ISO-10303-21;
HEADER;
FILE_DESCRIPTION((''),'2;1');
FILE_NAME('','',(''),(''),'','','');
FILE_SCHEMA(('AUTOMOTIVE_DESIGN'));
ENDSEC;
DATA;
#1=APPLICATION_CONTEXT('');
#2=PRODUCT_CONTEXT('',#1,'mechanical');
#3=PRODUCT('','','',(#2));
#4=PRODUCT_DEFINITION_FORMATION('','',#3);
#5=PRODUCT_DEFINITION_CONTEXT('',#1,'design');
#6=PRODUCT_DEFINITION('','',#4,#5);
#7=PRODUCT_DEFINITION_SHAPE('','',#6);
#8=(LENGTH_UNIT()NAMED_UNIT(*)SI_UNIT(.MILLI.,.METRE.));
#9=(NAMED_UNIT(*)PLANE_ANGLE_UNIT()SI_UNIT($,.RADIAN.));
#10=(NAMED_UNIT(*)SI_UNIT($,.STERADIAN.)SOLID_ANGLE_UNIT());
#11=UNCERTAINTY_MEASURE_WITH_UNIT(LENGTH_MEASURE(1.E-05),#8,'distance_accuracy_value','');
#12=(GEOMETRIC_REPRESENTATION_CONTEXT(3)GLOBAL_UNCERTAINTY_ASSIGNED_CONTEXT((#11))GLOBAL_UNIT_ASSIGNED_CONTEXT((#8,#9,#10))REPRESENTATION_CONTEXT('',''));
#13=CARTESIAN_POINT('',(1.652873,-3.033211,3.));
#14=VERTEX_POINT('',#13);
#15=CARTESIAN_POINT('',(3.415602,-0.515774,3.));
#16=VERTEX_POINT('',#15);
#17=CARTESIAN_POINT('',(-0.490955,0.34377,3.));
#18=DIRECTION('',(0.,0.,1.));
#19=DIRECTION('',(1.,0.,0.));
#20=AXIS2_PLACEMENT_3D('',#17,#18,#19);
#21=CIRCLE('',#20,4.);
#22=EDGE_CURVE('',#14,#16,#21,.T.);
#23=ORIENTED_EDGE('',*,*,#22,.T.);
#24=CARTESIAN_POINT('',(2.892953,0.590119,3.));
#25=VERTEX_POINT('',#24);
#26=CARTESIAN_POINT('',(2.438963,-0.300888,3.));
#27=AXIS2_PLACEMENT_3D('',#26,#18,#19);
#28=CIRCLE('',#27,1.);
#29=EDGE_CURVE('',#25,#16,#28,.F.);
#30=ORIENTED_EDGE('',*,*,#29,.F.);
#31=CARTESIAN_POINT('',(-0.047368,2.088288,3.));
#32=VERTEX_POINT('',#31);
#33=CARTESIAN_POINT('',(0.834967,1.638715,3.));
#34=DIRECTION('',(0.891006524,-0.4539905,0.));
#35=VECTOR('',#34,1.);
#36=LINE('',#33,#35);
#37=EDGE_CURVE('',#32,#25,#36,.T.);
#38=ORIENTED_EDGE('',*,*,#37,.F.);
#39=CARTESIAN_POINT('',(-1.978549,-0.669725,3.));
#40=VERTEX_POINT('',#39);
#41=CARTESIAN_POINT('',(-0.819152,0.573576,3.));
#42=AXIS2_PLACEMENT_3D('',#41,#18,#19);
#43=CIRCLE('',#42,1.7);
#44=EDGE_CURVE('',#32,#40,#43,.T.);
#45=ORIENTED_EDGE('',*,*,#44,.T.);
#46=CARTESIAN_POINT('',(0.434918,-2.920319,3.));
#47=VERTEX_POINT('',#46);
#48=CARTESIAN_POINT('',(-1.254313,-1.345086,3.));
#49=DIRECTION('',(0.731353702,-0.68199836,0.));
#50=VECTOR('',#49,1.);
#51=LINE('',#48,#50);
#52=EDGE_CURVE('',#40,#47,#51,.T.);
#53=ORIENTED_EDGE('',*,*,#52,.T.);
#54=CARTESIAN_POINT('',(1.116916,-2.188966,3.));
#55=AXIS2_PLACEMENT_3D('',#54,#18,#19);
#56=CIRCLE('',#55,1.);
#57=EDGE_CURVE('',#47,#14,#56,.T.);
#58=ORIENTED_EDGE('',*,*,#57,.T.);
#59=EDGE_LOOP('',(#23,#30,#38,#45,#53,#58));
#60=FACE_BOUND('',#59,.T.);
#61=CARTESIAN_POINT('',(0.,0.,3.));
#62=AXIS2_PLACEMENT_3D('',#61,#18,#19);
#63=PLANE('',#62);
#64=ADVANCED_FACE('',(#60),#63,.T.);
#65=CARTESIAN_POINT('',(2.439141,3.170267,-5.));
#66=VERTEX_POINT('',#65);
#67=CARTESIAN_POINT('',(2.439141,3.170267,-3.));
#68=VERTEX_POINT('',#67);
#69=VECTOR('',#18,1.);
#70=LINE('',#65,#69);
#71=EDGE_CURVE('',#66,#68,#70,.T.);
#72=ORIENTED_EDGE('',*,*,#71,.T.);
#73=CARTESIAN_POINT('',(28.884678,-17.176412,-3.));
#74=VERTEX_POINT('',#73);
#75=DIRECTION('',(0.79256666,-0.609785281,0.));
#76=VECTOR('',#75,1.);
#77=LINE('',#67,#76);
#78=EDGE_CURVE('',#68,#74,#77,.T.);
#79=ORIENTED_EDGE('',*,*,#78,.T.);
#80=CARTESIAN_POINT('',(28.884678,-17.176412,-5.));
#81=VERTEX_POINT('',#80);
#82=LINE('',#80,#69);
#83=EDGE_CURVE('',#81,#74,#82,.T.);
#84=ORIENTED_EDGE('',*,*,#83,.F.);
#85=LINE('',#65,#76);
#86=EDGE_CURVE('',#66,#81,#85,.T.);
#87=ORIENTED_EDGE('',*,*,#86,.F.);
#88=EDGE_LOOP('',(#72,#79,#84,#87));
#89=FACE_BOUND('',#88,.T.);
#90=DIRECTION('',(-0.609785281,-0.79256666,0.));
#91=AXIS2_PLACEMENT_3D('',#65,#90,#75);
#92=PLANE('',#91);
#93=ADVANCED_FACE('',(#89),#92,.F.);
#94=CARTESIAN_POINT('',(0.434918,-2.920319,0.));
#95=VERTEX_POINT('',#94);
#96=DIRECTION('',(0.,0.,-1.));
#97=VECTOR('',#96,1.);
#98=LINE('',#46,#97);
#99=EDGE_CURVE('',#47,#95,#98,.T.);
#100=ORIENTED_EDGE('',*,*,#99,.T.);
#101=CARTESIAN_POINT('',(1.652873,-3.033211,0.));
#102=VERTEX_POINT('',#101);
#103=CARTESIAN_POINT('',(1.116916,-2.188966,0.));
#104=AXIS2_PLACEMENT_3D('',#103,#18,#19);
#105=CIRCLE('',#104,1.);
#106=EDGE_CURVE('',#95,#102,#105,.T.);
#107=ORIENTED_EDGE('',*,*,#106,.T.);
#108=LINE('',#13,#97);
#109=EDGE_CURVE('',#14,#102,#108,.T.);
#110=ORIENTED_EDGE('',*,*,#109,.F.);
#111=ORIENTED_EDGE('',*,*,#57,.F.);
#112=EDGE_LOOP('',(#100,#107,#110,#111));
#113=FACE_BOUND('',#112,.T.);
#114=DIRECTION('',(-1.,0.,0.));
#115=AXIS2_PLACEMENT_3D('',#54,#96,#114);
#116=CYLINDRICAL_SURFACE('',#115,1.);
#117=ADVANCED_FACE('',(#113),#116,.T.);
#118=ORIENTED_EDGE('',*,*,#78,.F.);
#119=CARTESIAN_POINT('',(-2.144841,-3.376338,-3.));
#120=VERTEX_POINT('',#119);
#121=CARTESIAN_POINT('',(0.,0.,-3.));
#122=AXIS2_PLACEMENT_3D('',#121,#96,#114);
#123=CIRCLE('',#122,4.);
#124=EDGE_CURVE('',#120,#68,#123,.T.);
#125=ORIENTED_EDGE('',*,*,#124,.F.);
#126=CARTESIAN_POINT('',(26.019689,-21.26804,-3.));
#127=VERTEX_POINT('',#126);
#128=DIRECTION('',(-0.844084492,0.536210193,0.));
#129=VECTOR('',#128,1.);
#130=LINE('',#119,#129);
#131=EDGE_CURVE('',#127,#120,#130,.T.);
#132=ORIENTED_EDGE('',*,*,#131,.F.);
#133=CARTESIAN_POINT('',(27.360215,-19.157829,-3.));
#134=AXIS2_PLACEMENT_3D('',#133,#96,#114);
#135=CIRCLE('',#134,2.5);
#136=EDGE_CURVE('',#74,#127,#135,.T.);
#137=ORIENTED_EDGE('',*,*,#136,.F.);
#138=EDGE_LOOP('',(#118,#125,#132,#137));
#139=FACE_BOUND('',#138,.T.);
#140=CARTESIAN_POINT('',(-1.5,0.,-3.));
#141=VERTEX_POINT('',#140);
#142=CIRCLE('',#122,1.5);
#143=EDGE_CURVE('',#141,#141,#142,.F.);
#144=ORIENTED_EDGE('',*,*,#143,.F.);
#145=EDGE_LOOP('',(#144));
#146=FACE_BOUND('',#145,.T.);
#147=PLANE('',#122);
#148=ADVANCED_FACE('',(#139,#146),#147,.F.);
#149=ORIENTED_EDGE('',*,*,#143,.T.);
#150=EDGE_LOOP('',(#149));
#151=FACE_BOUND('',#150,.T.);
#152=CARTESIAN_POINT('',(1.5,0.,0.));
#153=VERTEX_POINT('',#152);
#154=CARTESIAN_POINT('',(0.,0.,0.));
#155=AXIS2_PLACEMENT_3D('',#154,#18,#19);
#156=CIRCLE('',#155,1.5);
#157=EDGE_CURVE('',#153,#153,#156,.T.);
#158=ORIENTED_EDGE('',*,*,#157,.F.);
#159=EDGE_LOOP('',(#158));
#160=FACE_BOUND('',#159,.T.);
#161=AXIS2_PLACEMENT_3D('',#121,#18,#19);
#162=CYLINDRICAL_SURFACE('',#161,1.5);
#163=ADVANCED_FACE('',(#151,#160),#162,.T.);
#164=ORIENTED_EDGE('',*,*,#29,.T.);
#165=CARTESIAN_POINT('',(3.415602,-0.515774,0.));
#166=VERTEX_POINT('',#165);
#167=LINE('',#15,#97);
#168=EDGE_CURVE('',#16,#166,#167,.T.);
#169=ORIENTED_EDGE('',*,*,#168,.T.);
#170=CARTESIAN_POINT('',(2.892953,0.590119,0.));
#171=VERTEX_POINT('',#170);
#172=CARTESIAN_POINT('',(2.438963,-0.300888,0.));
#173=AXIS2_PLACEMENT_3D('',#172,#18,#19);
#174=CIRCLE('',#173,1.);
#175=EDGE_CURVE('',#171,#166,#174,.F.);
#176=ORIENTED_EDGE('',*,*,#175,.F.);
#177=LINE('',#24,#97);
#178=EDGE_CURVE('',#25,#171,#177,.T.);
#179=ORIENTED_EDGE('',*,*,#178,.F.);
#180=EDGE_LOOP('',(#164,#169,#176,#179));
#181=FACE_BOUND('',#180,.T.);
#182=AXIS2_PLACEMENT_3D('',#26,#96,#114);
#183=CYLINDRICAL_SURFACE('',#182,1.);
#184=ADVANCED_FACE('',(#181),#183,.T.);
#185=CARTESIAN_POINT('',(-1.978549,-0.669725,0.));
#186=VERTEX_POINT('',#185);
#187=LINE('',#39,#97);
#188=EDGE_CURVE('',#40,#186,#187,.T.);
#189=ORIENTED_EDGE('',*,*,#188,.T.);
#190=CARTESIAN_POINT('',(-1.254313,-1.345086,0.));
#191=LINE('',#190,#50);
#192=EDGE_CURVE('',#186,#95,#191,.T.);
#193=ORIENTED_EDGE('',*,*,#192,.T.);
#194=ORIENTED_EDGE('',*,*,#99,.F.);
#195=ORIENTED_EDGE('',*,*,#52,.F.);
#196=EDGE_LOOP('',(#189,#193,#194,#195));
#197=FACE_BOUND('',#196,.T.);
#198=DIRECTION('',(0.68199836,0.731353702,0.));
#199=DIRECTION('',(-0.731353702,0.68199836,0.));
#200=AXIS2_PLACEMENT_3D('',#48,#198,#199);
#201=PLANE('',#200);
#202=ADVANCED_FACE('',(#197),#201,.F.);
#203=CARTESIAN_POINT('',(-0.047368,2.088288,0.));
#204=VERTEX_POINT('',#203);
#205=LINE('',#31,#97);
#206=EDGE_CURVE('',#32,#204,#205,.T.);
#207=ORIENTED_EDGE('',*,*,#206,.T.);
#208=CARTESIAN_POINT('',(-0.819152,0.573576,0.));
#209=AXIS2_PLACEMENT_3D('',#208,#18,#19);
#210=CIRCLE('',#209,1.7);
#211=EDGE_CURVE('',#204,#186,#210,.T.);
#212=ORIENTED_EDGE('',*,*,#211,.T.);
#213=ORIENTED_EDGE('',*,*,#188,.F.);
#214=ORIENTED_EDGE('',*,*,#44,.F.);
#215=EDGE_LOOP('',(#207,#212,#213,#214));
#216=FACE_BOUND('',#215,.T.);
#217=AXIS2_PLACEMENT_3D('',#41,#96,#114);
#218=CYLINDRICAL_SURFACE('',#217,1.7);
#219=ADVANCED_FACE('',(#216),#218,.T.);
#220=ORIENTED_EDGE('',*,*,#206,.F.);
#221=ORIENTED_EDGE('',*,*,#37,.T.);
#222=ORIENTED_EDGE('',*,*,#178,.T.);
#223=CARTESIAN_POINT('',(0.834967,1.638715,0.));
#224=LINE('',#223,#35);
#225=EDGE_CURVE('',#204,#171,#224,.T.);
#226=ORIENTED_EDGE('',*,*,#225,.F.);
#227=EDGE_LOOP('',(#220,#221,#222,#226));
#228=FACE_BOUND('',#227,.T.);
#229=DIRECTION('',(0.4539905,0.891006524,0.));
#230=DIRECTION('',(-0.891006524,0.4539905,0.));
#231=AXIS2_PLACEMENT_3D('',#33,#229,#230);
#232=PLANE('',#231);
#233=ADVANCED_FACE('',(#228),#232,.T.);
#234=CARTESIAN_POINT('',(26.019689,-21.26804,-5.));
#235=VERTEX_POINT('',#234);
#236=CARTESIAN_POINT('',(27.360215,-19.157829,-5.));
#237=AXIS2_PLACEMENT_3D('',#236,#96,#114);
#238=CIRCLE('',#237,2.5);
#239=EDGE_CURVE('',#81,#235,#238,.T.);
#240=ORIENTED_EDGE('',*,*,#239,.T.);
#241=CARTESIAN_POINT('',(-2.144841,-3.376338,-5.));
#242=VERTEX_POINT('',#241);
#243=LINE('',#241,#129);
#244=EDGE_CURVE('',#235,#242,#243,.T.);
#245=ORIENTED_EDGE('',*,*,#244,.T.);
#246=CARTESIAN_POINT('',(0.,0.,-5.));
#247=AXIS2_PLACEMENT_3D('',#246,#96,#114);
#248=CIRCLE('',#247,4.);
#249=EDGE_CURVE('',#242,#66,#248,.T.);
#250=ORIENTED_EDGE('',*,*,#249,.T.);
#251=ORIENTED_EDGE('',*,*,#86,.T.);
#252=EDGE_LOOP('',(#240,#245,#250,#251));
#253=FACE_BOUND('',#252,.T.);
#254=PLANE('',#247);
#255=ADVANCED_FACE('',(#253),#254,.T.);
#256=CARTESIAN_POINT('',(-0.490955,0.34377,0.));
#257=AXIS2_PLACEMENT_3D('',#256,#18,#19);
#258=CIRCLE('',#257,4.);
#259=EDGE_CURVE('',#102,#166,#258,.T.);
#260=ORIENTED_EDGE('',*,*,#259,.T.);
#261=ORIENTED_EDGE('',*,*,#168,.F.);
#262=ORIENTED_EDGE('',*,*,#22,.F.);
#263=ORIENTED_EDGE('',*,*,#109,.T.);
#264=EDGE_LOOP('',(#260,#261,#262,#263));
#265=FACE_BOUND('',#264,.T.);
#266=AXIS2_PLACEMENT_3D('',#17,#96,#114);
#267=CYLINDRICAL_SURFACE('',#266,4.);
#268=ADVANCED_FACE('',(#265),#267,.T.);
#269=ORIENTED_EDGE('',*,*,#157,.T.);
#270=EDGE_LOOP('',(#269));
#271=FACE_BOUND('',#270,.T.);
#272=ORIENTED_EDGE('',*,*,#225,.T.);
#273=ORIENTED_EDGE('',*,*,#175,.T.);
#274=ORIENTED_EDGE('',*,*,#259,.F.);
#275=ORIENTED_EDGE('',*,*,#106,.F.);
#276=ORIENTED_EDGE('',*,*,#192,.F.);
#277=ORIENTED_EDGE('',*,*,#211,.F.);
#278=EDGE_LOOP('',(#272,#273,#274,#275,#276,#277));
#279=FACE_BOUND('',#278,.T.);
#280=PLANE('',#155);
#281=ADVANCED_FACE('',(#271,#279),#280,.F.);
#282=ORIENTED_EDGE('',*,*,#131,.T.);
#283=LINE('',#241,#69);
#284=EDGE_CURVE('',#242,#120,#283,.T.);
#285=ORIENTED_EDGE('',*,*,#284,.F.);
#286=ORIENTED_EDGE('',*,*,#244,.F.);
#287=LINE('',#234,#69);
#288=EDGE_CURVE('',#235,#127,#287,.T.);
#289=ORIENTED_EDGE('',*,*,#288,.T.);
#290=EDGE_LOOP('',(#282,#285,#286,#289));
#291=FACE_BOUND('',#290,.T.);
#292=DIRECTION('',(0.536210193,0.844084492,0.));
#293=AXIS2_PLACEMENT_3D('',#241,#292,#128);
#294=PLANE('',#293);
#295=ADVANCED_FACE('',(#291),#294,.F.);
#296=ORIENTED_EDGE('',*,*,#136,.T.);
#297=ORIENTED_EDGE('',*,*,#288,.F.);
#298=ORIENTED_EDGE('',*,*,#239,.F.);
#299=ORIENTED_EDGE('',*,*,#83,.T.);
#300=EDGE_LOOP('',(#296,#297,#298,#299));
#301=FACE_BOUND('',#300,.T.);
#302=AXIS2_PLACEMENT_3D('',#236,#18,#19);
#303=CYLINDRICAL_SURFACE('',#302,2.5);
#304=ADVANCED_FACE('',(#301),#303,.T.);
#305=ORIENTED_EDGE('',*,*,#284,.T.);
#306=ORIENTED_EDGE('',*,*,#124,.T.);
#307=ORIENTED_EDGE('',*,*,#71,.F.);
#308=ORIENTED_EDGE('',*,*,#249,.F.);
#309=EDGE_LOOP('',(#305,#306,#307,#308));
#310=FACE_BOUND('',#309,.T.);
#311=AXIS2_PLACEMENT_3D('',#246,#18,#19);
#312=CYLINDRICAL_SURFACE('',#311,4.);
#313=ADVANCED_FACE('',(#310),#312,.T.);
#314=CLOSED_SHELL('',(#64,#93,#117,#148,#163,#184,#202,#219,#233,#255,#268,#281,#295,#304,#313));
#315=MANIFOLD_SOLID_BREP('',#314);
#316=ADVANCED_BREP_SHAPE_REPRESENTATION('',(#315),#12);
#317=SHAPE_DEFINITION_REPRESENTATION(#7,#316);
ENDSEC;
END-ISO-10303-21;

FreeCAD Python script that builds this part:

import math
import FreeCAD as App
import Part
import Sketcher

V = App.Vector
Q = App.Units.Quantity

doc = App.newDocument("Part")
body = doc.addObject("PartDesign::Body", "Body")

sketch1 = body.newObject("Sketcher::SketchObject", "Sketch")
sketch1.AttachmentSupport = (doc.getObject("XY_Plane"), [""])
sketch1.MapMode = "FlatFace"
sketch1.addGeometry([
    Part.ArcOfCircle(Part.Circle(V(2.4, -0.3, 0), V(0, 0, 1), 1), math.radians(-12), math.radians(63)),
    Part.LineSegment(V(2.9, 0.6, 0), V(0, 2.1, 0)),
    Part.ArcOfCircle(Part.Circle(V(-0.8, 0.6, 0), V(0, 0, 1), 1.7), math.radians(63), math.radians(227)),
    Part.LineSegment(V(-2, -0.7, 0), V(0.4, -2.9, 0)),
    Part.ArcOfCircle(Part.Circle(V(1.1, -2.2, 0), V(0, 0, 1), 1), math.radians(-133), math.radians(-58)),
    Part.ArcOfCircle(Part.Circle(V(-0.5, 0.3, 0), V(0, 0, 1), 4), math.radians(-58), math.radians(-12)),
], False)
sketch1.addConstraint([
    Sketcher.Constraint("Tangent", 0, 2, 1, 1),
    Sketcher.Constraint("Tangent", 1, 2, 2, 1),
    Sketcher.Constraint("Tangent", 2, 2, 3, 1),
    Sketcher.Constraint("Tangent", 3, 2, 4, 1),
    Sketcher.Constraint("Tangent", 4, 2, 5, 1),
    Sketcher.Constraint("Tangent", 5, 2, 0, 1),
    Sketcher.Constraint("Equal", 0, 4),
    Sketcher.Constraint("Equal", 1, 3),
    Sketcher.Constraint("Radius", 0, 1.0),
    Sketcher.Constraint("Radius", 5, 4.0),
    Sketcher.Constraint("Radius", 2, 1.7),
    Sketcher.Constraint("Angle", 1, Q("153 deg")),
    Sketcher.Constraint("Angle", 3, Q("-43 deg")),
    Sketcher.Constraint("Distance", 1, 3.3),
    Sketcher.Constraint("DistanceX", -1, 1, 5, 2, 3.415602),
    Sketcher.Constraint("DistanceY", -1, 1, 5, 3, 0.34377),
])
pad1 = body.newObject("PartDesign::Pad", "Pad")
pad1.Profile = sketch1
pad1.Length = 3

sketch2 = body.newObject("Sketcher::SketchObject", "Sketch001")
sketch2.AttachmentSupport = (doc.getObject("XY_Plane"), [""])
sketch2.MapMode = "FlatFace"
sketch2.addGeometry(Part.Circle(V(0, 0, 0), V(0, 0, 1), 1.5), False)
sketch2.addConstraint([
    Sketcher.Constraint("Coincident", 0, 3, -1, 1),
    Sketcher.Constraint("Diameter", 0, 3.0),
])
pad2 = body.newObject("PartDesign::Pad", "Pad001")
pad2.Profile = sketch2
pad2.Length = 3
pad2.Reversed = True

sketch3 = body.newObject("Sketcher::SketchObject", "Sketch002")
sketch3.AttachmentSupport = (doc.getObject("XY_Plane"), [""])
sketch3.MapMode = "FlatFace"
sketch3.AttachmentOffset = App.Placement(V(0, 0, -3), App.Rotation())
sketch3.addGeometry([
    Part.LineSegment(V(2.439141, 3.170267, 0), V(28.884678, -17.176412, 0)),
    Part.ArcOfCircle(Part.Circle(V(27.360215, -19.157829, 0), V(0, 0, 1), 2.5), math.radians(-122.426021), math.radians(52.426021)),
    Part.LineSegment(V(26.019689, -21.26804, 0), V(-2.144841, -3.376338, 0)),
    Part.ArcOfCircle(Part.Circle(V(0, 0, 0), V(0, 0, 1), 4), math.radians(52.426021), math.radians(237.573979)),
], False)
sketch3.addConstraint([
    Sketcher.Constraint("Coincident", 0, 2, 1, 2),
    Sketcher.Constraint("Coincident", 1, 1, 2, 1),
    Sketcher.Constraint("Coincident", 2, 2, 3, 2),
    Sketcher.Constraint("Coincident", 3, 1, 0, 1),
    Sketcher.Constraint("Coincident", 3, 3, -1, 1),
    Sketcher.Constraint("Radius", 3, 4.0),
    Sketcher.Constraint("Radius", 1, 2.5),
    Sketcher.Constraint("DistanceY", 1, 1, 2, 2, 17.891702),
    Sketcher.Constraint("DistanceY", 1, 3, -1, 1, 19.157829),
    Sketcher.Constraint("DistanceX", -1, 1, 0, 2, 28.884678),
    Sketcher.Constraint("DistanceX", -1, 1, 1, 1, 26.019689),
    Sketcher.Constraint("DistanceY", 1, 1, -1, 1, 21.26804),
    Sketcher.Constraint("DistanceX", -1, 1, 3, 1, 2.439141),
])
pad3 = body.newObject("PartDesign::Pad", "Pad002")
pad3.Profile = sketch3
pad3.Length = 2
pad3.Reversed = True

doc.recompute()
